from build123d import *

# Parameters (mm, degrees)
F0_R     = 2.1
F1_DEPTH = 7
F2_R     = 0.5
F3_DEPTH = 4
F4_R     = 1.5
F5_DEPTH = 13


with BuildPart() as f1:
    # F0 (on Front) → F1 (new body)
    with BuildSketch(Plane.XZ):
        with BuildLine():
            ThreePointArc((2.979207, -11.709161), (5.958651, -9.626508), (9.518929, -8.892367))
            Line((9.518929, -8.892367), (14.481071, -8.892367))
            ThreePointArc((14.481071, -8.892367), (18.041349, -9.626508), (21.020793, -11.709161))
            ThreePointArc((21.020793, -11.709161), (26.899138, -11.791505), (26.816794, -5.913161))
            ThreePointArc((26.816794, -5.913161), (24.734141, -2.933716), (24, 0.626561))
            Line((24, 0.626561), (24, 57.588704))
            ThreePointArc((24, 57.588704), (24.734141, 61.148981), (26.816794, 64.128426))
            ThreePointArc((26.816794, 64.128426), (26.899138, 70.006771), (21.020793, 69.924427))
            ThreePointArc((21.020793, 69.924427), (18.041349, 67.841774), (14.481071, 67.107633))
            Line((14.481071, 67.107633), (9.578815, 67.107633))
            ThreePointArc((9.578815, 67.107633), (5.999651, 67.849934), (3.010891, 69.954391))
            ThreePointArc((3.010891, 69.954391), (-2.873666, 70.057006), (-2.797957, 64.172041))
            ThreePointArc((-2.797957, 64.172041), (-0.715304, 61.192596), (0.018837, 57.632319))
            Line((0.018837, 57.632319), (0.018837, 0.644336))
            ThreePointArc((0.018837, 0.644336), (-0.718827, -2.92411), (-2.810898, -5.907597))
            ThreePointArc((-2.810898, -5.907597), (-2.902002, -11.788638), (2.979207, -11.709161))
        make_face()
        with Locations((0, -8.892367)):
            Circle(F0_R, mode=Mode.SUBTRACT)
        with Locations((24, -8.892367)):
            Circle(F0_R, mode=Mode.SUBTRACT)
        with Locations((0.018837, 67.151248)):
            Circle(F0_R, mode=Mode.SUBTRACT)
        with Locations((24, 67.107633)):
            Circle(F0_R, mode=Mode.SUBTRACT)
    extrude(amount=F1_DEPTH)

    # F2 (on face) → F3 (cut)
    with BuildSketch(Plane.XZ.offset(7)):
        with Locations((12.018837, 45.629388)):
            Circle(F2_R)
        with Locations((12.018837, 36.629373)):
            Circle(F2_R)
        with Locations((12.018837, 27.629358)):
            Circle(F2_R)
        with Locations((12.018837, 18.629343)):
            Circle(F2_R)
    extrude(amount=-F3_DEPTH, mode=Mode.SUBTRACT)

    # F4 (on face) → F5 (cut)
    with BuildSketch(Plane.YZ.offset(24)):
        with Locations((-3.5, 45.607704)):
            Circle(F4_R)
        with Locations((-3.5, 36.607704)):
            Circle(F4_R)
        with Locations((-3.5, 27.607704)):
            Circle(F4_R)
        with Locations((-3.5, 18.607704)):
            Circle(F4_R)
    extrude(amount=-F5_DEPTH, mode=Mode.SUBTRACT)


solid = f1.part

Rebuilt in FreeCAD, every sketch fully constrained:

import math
import FreeCAD as App
import Part
import Sketcher
from FreeCAD import Vector
Q = App.Units.Quantity

doc = App.newDocument("Part")
body = doc.addObject("PartDesign::Body", "Body")

# Sketch on XZ plane
sketch1 = body.newObject("Sketcher::SketchObject", "Sketch")
sketch1.AttachmentSupport = (doc.getObject("XZ_Plane"), [""])
sketch1.MapMode = "FlatFace"
sketch1.addGeometry([
    Part.ArcOfCircle(Part.Circle(Vector(9.518928, -17.892364, 0), Vector(0, 0, 1), 8.999997), math.radians(89.999993), math.radians(136.605103)),  # 0
    Part.LineSegment(Vector(9.518929, -8.892367, 0), Vector(14.481071, -8.892367, 0)),  # 1
    Part.ArcOfCircle(Part.Circle(Vector(14.481072, -17.892364, 0), Vector(0, 0, 1), 8.999997), math.radians(43.394897), math.radians(90.000007)),  # 2
    Part.ArcOfCircle(Part.Circle(Vector(24, -8.892367, 0), Vector(0, 0, 1), 4.1), math.radians(-136.605101), math.radians(46.605092)),  # 3
    Part.ArcOfCircle(Part.Circle(Vector(33.000002, 0.626562, 0), Vector(0, 0, 1), 9.000002), math.radians(-179.999995), math.radians(-133.394909)),  # 4
    Part.LineSegment(Vector(24, 0.626561, 0), Vector(24, 57.588704, 0)),  # 5
    Part.ArcOfCircle(Part.Circle(Vector(33.000002, 57.588703, 0), Vector(0, 0, 1), 9.000002), math.radians(133.394909), math.radians(179.999995)),  # 6
    Part.ArcOfCircle(Part.Circle(Vector(24, 67.107633, 0), Vector(0, 0, 1), 4.1), math.radians(-46.605096), math.radians(136.605096)),  # 7
    Part.ArcOfCircle(Part.Circle(Vector(14.481072, 76.10763, 0), Vector(0, 0, 1), 8.999997), math.radians(-90.000007), math.radians(-43.394897)),  # 8
    Part.LineSegment(Vector(14.481071, 67.107633, 0), Vector(9.578815, 67.107633, 0)),  # 9
    Part.ArcOfCircle(Part.Circle(Vector(9.578814, 76.107633, 0), Vector(0, 0, 1), 9), math.radians(-136.867052), math.radians(-89.999993)),  # 10
    Part.ArcOfCircle(Part.Circle(Vector(0.018837, 67.151248, 0), Vector(0, 0, 1), 4.1), math.radians(43.132937), math.radians(226.605102)),  # 11
    Part.ArcOfCircle(Part.Circle(Vector(-8.981165, 57.632318, 0), Vector(0, 0, 1), 9.000002), math.radians(0.000005), math.radians(46.605091)),  # 12
    Part.LineSegment(Vector(0.018837, 57.632319, 0), Vector(0.018837, 0.644336, 0)),  # 13
    Part.ArcOfCircle(Part.Circle(Vector(-8.98116, 0.644335, 0), Vector(0, 0, 1), 8.999997), math.radians(-46.718377), math.radians(0.000007)),  # 14
    Part.ArcOfCircle(Part.Circle(Vector(0, -8.892367, 0), Vector(0, 0, 1), 4.1), math.radians(133.281622), math.radians(316.605098)),  # 15
    Part.Circle(Vector(0, -8.892367, 0), Vector(0, 0, 1), 2.1),  # 16
    Part.Circle(Vector(24, -8.892367, 0), Vector(0, 0, 1), 2.1),  # 17
    Part.Circle(Vector(0.018837, 67.151248, 0), Vector(0, 0, 1), 2.1),  # 18
    Part.Circle(Vector(24, 67.107633, 0), Vector(0, 0, 1), 2.1),  # 19
], False)
sketch1.addConstraint([
    Sketcher.Constraint("Tangent", 0, 1, 1, 1),
    Sketcher.Constraint("Tangent", 1, 2, 2, 2),
    Sketcher.Constraint("Tangent", 2, 1, 3, 1),
    Sketcher.Constraint("Tangent", 3, 2, 4, 2),
    Sketcher.Constraint("Tangent", 4, 1, 5, 1),
    Sketcher.Constraint("Tangent", 5, 2, 6, 2),
    Sketcher.Constraint("Tangent", 6, 1, 7, 1),
    Sketcher.Constraint("Tangent", 7, 2, 8, 2),
    Sketcher.Constraint("Tangent", 8, 1, 9, 1),
    Sketcher.Constraint("Tangent", 9, 2, 10, 2),
    Sketcher.Constraint("Tangent", 10, 1, 11, 1),
    Sketcher.Constraint("Tangent", 11, 2, 12, 2),
    Sketcher.Constraint("Tangent", 12, 1, 13, 1),
    Sketcher.Constraint("Tangent", 13, 2, 14, 2),
    Sketcher.Constraint("Tangent", 14, 1, 15, 1),
    Sketcher.Constraint("Tangent", 15, 2, 0, 2),
    Sketcher.Constraint("Horizontal", 1),
    Sketcher.Constraint("Vertical", 5),
    Sketcher.Constraint("Horizontal", 9),
    Sketcher.Constraint("Vertical", 13),
    Sketcher.Constraint("Coincident", 16, 3, 15, 3),
    Sketcher.Constraint("Coincident", 17, 3, 3, 3),
    Sketcher.Constraint("Coincident", 18, 3, 11, 3),
    Sketcher.Constraint("Coincident", 19, 3, 7, 3),
    Sketcher.Constraint("Equal", 0, 2),
    Sketcher.Constraint("Equal", 4, 6),
    Sketcher.Constraint("Equal", 3, 7),
    Sketcher.Constraint("Equal", 2, 8),
    Sketcher.Constraint("Equal", 7, 11),
    Sketcher.Constraint("Equal", 6, 12),
    Sketcher.Constraint("Equal", 8, 14),
    Sketcher.Constraint("Equal", 11, 15),
    Sketcher.Constraint("Equal", 16, 17),
    Sketcher.Constraint("Equal", 17, 18),
    Sketcher.Constraint("Equal", 18, 19),
    Sketcher.Constraint("PointOnObject", 15, 3, -2),
    Sketcher.Constraint("Horizontal", 3, 3, 15, 3),
    Sketcher.Constraint("Horizontal", 17, 3, 0, 1),
    Sketcher.Constraint("Horizontal", 19, 3, 8, 1),
    Sketcher.Constraint("Vertical", 3, 3, 7, 3),
    Sketcher.Constraint("Vertical", 19, 3, 4, 1),
    Sketcher.Constraint("Vertical", 18, 3, 12, 1),
    Sketcher.Constraint("Radius", 4, Q("9.000002 mm")),
    Sketcher.Constraint("Radius", 10, Q("9 mm")),
    Sketcher.Constraint("Diameter", 16, Q("4.2 mm")),
    Sketcher.Constraint("Radius", 3, Q("4.1 mm")),
    Sketcher.Constraint("DistanceX", -1, 1, 3, 3, Q("24 mm")),
    Sketcher.Constraint("DistanceY", 3, 3, 7, 3, Q("76 mm")),
    Sketcher.Constraint("Radius", 0, Q("8.999997 mm")),
    Sketcher.Constraint("DistanceY", 0, 3, 14, 3, Q("18.536699 mm")),
    Sketcher.Constraint("DistanceX", 9, 2, 9, 1, Q("4.902256 mm")),
    Sketcher.Constraint("DistanceY", -1, 1, 4, 3, Q("0.626562 mm")),
])
pad1 = body.newObject("PartDesign::Pad", "Pad")
pad1.Profile = sketch1
pad1.Length = 7

# Sketch on XZ plane
sketch2 = body.newObject("Sketcher::SketchObject", "Sketch001")
sketch2.AttachmentSupport = (doc.getObject("XZ_Plane"), [""])
sketch2.MapMode = "FlatFace"
sketch2.AttachmentOffset = App.Placement(Vector(0, 0, 7), App.Rotation())
sketch2.addGeometry([
    Part.Circle(Vector(12.018837, 45.629388, 0), Vector(0, 0, 1), 0.5),
    Part.Circle(Vector(12.018837, 36.629373, 0), Vector(0, 0, 1), 0.5),
    Part.Circle(Vector(12.018837, 27.629358, 0), Vector(0, 0, 1), 0.5),
    Part.Circle(Vector(12.018837, 18.629343, 0), Vector(0, 0, 1), 0.5),
], False)
sketch2.addConstraint([
    Sketcher.Constraint("Equal", 0, 1),
    Sketcher.Constraint("Equal", 1, 2),
    Sketcher.Constraint("Equal", 2, 3),
    Sketcher.Constraint("Vertical", 0, 3, 1, 3),
    Sketcher.Constraint("Vertical", 1, 3, 2, 3),
    Sketcher.Constraint("Vertical", 2, 3, 3, 3),
    Sketcher.Constraint("Diameter", 0, Q("1 mm")),
    Sketcher.Constraint("DistanceY", -1, 1, 2, 3, Q("27.629358 mm")),
    Sketcher.Constraint("DistanceY", 2, 3, 0, 3, Q("18.00003 mm")),
    Sketcher.Constraint("DistanceY", 3, 3, 1, 3, Q("18.00003 mm")),
    Sketcher.Constraint("DistanceX", -1, 1, 0, 3, Q("12.018837 mm")),
    Sketcher.Constraint("DistanceY", -1, 1, 1, 3, Q("36.629373 mm")),
])
pocket1 = body.newObject("PartDesign::Pocket", "Pocket")
pocket1.Profile = sketch2
pocket1.Length = 4

# Sketch on YZ plane
sketch3 = body.newObject("Sketcher::SketchObject", "Sketch002")
sketch3.AttachmentSupport = (doc.getObject("YZ_Plane"), [""])
sketch3.MapMode = "FlatFace"
sketch3.AttachmentOffset = App.Placement(Vector(0, 0, 24), App.Rotation())
sketch3.addGeometry([
    Part.Circle(Vector(-3.5, 45.607704, 0), Vector(0, 0, 1), 1.5),
    Part.Circle(Vector(-3.5, 36.607704, 0), Vector(0, 0, 1), 1.5),
    Part.Circle(Vector(-3.5, 27.607704, 0), Vector(0, 0, 1), 1.5),
    Part.Circle(Vector(-3.5, 18.607704, 0), Vector(0, 0, 1), 1.5),
], False)
sketch3.addConstraint([
    Sketcher.Constraint("Equal", 0, 1),
    Sketcher.Constraint("Equal", 1, 2),
    Sketcher.Constraint("Equal", 2, 3),
    Sketcher.Constraint("Vertical", 0, 3, 1, 3),
    Sketcher.Constraint("Vertical", 1, 3, 2, 3),
    Sketcher.Constraint("Vertical", 2, 3, 3, 3),
    Sketcher.Constraint("Diameter", 0, Q("3 mm")),
    Sketcher.Constraint("DistanceY", 1, 3, 0, 3, Q("9 mm")),
    Sketcher.Constraint("DistanceY", 2, 3, 1, 3, Q("9 mm")),
    Sketcher.Constraint("DistanceY", 3, 3, 2, 3, Q("9 mm")),
    Sketcher.Constraint("DistanceX", 0, 3, -1, 1, Q("3.5 mm")),
    Sketcher.Constraint("DistanceY", -1, 1, 0, 3, Q("45.607704 mm")),
])
pocket2 = body.newObject("PartDesign::Pocket", "Pocket001")
pocket2.Profile = sketch3
pocket2.Length = 13

doc.recompute()
